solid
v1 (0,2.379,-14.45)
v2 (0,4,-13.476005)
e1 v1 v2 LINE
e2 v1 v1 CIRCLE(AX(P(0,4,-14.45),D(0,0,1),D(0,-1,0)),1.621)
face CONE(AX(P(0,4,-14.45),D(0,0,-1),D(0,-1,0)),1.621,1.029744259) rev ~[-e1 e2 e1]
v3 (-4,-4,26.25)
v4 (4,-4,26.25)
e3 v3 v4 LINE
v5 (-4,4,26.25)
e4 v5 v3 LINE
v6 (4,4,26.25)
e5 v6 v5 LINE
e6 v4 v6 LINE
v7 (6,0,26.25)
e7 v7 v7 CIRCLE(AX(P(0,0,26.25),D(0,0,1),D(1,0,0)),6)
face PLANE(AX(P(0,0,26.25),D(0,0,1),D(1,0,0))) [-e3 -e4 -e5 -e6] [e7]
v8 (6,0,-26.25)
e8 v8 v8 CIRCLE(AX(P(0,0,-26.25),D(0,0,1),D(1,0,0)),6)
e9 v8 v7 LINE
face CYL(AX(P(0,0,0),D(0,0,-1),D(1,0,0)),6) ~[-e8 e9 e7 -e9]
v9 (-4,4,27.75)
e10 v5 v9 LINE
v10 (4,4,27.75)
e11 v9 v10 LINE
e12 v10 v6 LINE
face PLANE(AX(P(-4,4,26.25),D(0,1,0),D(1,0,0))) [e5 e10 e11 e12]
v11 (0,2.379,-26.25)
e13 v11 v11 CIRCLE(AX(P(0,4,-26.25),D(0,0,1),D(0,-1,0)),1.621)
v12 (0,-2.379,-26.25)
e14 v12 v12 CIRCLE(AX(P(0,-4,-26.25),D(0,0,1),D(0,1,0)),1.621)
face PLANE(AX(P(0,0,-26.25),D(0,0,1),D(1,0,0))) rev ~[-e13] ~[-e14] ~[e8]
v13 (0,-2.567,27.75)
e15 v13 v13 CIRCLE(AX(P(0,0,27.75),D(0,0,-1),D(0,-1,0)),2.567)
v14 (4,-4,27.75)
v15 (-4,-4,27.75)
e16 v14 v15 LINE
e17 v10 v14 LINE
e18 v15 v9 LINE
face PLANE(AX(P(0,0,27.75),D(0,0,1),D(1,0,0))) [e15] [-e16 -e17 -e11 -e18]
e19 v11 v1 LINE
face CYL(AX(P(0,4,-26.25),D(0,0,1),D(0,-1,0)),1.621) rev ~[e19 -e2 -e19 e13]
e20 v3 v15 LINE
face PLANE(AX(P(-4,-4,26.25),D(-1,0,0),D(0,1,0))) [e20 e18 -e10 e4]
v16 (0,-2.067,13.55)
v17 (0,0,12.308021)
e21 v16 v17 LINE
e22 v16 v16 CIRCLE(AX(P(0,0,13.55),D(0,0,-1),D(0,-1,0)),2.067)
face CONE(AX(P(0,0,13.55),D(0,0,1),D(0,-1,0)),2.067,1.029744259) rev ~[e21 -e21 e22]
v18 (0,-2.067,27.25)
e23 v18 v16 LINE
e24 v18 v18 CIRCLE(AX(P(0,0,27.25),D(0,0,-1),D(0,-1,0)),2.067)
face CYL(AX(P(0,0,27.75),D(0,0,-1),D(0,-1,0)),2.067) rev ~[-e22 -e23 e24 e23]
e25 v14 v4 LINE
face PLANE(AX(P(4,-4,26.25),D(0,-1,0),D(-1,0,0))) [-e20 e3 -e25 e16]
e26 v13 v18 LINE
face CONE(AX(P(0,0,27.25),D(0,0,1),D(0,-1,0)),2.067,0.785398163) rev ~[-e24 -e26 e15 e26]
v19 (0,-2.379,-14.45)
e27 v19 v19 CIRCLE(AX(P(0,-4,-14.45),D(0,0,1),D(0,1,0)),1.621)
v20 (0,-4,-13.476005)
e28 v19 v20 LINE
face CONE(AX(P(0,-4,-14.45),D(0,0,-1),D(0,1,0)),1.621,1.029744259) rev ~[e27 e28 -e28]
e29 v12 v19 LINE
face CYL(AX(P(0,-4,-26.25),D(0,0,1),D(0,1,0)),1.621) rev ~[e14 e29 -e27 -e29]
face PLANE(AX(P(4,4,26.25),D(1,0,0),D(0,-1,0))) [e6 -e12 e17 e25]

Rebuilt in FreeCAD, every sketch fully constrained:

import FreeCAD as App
import Part
import Sketcher

V = App.Vector
Q = App.Units.Quantity


def edges_at(feature, points):
    """Names of the edges that pass closest to the given points."""
    edges = feature.Shape.Edges
    near = lambda p: min(range(len(edges)), key=lambda i: edges[i].distToShape(Part.Vertex(*p))[0])
    return sorted({f"Edge{near(p) + 1}" for p in points})

doc = App.newDocument("Part")
body = doc.addObject("PartDesign::Body", "Body")

sketch1 = body.newObject("Sketcher::SketchObject", "Sketch")
sketch1.AttachmentSupport = (doc.getObject("XY_Plane"), [""])
sketch1.MapMode = "FlatFace"
sketch1.addGeometry(Part.Circle(V(0, 0, 0), V(0, 0, 1), 6), False)
sketch1.addConstraint([
    Sketcher.Constraint("Coincident", 0, 3, -1, 1),
    Sketcher.Constraint("Diameter", 0, Q("12 mm")),
])
pad1 = body.newObject("PartDesign::Pad", "Pad")
pad1.Profile = sketch1
pad1.Length = 52.5
pad1.Midplane = True

sketch2 = body.newObject("Sketcher::SketchObject", "Sketch001")
sketch2.AttachmentSupport = (doc.getObject("XY_Plane"), [""])
sketch2.MapMode = "FlatFace"
sketch2.AttachmentOffset = App.Placement(V(0, 0, 26.25), App.Rotation())
sketch2.addGeometry([
    Part.LineSegment(V(4, 4, 0), V(-4, 4, 0)),
    Part.LineSegment(V(-4, 4, 0), V(-4, -4, 0)),
    Part.LineSegment(V(-4, -4, 0), V(4, -4, 0)),
    Part.LineSegment(V(4, -4, 0), V(4, 4, 0)),
], False)
sketch2.addConstraint([
    Sketcher.Constraint("Coincident", 0, 2, 1, 1),
    Sketcher.Constraint("Coincident", 1, 2, 2, 1),
    Sketcher.Constraint("Coincident", 2, 2, 3, 1),
    Sketcher.Constraint("Coincident", 3, 2, 0, 1),
    Sketcher.Constraint("Horizontal", 0),
    Sketcher.Constraint("Vertical", 1),
    Sketcher.Constraint("Horizontal", 2),
    Sketcher.Constraint("Vertical", 3),
    Sketcher.Constraint("Symmetric", 0, 2, 2, 2, -1, 1),
    Sketcher.Constraint("Equal", 2, 1),
    Sketcher.Constraint("DistanceX", 0, 2, 0, 1, Q("8 mm")),
])
pad2 = body.newObject("PartDesign::Pad", "Pad001")
pad2.Profile = sketch2
pad2.Type = "TwoLengths"
pad2.Length = 1.5
pad2.Length2 = 34

sketch3 = body.newObject("Sketcher::SketchObject", "Sketch002")
sketch3.AttachmentSupport = (doc.getObject("XY_Plane"), [""])
sketch3.MapMode = "FlatFace"
sketch3.AttachmentOffset = App.Placement(V(0, 0, -26.25), App.Rotation())
sketch3.addGeometry(Part.Circle(V(0, -4, 0), V(0, 0, 1), 1.6), False)
sketch3.addConstraint([
    Sketcher.Constraint("PointOnObject", 0, 3, -2),
    Sketcher.Constraint("Diameter", 0, Q("3.242 mm")),
    Sketcher.Constraint("DistanceY", 0, 3, -1, 1, Q("4 mm")),
])
doc.recompute()
hole = body.newObject("PartDesign::Hole", "Hole")
hole.Profile = sketch3
hole.ThreadType = "None"
hole.Diameter = 3.242
hole.DepthType = "Dimension"
hole.Depth = 11.8
hole.DrillPoint = "Angled"
hole.DrillPointAngle = 118
hole.HoleCutType = "Counterbore"
hole.HoleCutDiameter = 9
hole.HoleCutDepth = 0
hole.Reversed = True
doc.recompute()

polarpattern = body.newObject("PartDesign::PolarPattern", "PolarPattern")
polarpattern.Originals = [hole]
polarpattern.Axis = (doc.getObject("Z_Axis"), [""])
polarpattern.Angle = 360
polarpattern.Occurrences = 2
body.Tip = polarpattern

sketch4 = body.newObject("Sketcher::SketchObject", "Sketch003")
sketch4.AttachmentSupport = (doc.getObject("XY_Plane"), [""])
sketch4.MapMode = "FlatFace"
sketch4.AttachmentOffset = App.Placement(V(0, 0, 27.75), App.Rotation())
sketch4.addGeometry(Part.Circle(V(0, 0, 0), V(0, 0, 1), 2.1), False)
sketch4.addConstraint([
    Sketcher.Constraint("Coincident", 0, 3, -1, 1),
    Sketcher.Constraint("Diameter", 0, Q("4.134 mm")),
])
doc.recompute()
hole2 = body.newObject("PartDesign::Hole", "Hole001")
hole2.Profile = sketch4
hole2.ThreadType = "None"
hole2.Diameter = 4.134
hole2.DepthType = "Dimension"
hole2.Depth = 14.2
hole2.DrillPoint = "Angled"
hole2.DrillPointAngle = 118
doc.recompute()

chamfer = body.newObject("PartDesign::Chamfer", "Chamfer")
chamfer.Base = (hole2, edges_at(hole2, [(0, 2.067, 27.75)]))
chamfer.Size = 0.5

doc.recompute()
